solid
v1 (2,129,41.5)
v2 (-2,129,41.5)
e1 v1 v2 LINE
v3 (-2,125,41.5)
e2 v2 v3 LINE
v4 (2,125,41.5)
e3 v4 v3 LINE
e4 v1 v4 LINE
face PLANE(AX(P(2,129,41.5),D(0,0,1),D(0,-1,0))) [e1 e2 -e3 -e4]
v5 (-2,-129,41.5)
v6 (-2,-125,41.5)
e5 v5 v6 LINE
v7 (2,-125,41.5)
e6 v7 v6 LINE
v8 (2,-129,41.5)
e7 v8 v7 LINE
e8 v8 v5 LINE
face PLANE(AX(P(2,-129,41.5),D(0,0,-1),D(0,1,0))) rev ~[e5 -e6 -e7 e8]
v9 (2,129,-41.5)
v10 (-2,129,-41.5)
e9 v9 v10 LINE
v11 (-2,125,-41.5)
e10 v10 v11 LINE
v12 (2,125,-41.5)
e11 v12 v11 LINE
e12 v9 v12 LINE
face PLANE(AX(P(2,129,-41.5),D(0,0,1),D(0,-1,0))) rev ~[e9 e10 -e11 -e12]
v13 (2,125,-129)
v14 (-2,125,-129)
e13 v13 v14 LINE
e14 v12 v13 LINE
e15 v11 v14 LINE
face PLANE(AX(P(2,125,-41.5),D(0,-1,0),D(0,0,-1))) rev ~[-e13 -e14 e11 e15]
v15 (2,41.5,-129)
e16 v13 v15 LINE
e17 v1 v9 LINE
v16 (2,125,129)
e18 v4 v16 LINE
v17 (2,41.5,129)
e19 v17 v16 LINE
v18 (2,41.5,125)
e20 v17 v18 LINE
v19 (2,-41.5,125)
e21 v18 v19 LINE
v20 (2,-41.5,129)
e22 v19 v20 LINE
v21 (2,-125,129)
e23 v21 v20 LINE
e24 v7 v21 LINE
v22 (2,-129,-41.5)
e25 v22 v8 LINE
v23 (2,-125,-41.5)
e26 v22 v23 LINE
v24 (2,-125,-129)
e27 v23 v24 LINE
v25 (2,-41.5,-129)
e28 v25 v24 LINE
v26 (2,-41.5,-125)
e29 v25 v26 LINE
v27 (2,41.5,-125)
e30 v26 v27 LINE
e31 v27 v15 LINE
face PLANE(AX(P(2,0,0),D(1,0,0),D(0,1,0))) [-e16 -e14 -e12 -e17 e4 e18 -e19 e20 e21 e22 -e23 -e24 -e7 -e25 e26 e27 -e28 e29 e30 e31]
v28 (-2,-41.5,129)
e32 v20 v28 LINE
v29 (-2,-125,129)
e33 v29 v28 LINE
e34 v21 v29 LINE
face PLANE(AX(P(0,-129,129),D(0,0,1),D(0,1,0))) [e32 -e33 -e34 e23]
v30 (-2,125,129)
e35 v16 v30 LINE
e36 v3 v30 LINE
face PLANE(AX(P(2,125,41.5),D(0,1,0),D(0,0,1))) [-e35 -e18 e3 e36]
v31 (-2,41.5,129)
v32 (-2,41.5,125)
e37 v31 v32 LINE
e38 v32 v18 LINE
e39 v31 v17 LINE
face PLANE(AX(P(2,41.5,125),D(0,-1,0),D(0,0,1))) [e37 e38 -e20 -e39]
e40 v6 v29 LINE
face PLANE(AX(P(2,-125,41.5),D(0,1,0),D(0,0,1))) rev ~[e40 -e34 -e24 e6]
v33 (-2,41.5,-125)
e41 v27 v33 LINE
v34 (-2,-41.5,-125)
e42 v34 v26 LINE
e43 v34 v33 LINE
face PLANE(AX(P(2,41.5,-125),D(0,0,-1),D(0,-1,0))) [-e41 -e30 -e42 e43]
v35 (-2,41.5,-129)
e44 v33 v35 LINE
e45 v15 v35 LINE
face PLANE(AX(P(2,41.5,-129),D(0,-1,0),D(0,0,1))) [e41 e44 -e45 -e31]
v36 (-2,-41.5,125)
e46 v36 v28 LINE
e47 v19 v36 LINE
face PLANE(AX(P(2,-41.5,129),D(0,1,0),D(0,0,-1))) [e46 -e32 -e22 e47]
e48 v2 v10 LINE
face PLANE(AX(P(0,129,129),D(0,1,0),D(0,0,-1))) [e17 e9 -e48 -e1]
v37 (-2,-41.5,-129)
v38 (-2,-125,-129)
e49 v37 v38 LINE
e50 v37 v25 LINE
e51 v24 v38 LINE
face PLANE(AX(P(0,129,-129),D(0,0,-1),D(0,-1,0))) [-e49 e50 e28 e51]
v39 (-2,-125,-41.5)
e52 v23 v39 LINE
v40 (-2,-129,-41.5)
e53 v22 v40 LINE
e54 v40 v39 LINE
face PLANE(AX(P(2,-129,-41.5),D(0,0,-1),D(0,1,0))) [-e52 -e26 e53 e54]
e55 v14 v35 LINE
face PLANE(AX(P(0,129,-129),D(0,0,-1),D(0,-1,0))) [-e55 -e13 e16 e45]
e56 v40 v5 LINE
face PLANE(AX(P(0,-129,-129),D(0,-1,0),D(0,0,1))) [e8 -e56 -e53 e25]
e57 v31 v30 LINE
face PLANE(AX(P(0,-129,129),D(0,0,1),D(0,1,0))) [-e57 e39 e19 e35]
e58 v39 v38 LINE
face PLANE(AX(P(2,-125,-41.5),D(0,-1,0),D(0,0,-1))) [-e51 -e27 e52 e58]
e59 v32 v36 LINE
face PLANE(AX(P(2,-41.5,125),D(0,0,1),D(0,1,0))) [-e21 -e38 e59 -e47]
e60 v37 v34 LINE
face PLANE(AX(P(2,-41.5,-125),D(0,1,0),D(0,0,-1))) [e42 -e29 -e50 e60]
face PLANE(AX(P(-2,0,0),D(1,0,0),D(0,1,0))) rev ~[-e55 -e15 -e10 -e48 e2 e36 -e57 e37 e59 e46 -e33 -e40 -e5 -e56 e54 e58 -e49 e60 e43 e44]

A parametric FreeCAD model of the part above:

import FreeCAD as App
import Part
import Sketcher

V = App.Vector

doc = App.newDocument("Part")
body = doc.addObject("PartDesign::Body", "Body")

sketch1 = body.newObject("Sketcher::SketchObject", "Sketch")
sketch1.AttachmentSupport = (doc.getObject("YZ_Plane"), [""])
sketch1.MapMode = "FlatFace"
sketch1.addGeometry([
    Part.LineSegment(V(129, 129, 0), V(-129, 129, 0)),
    Part.LineSegment(V(-129, 129, 0), V(-129, -129, 0)),
    Part.LineSegment(V(-129, -129, 0), V(129, -129, 0)),
    Part.LineSegment(V(129, -129, 0), V(129, 129, 0)),
], False)
sketch1.addConstraint([
    Sketcher.Constraint("Coincident", 0, 2, 1, 1),
    Sketcher.Constraint("Coincident", 1, 2, 2, 1),
    Sketcher.Constraint("Coincident", 2, 2, 3, 1),
    Sketcher.Constraint("Coincident", 3, 2, 0, 1),
    Sketcher.Constraint("Horizontal", 0),
    Sketcher.Constraint("Vertical", 1),
    Sketcher.Constraint("Horizontal", 2),
    Sketcher.Constraint("Vertical", 3),
    Sketcher.Constraint("Symmetric", 0, 2, 2, 2, -1, 1),
    Sketcher.Constraint("Equal", 2, 1),
    Sketcher.Constraint("DistanceX", 0, 2, 0, 1, 258.0),
])
pad1 = body.newObject("PartDesign::Pad", "Pad")
pad1.Profile = sketch1
pad1.Length = 4
pad1.Midplane = True

sketch2 = body.newObject("Sketcher::SketchObject", "Sketch001")
sketch2.AttachmentSupport = (doc.getObject("YZ_Plane"), [""])
sketch2.MapMode = "FlatFace"
sketch2.AttachmentOffset = App.Placement(V(0, 0, 2), App.Rotation())
sketch2.addGeometry([
    Part.LineSegment(V(125, -129, 0), V(129, -129, 0)),
    Part.LineSegment(V(129, -129, 0), V(129, -41.5, 0)),
    Part.LineSegment(V(129, -41.5, 0), V(125, -41.5, 0)),
    Part.LineSegment(V(125, -41.5, 0), V(125, -129, 0)),
    Part.LineSegment(V(-129, -129, 0), V(-125, -129, 0)),
    Part.LineSegment(V(-125, -129, 0), V(-125, -41.5, 0)),
    Part.LineSegment(V(-125, -41.5, 0), V(-129, -41.5, 0)),
    Part.LineSegment(V(-129, -41.5, 0), V(-129, -129, 0)),
    Part.LineSegment(V(-125, 41.5, 0), V(-125, 129, 0)),
    Part.LineSegment(V(-125, 129, 0), V(-129, 129, 0)),
    Part.LineSegment(V(-129, 129, 0), V(-129, 41.5, 0)),
    Part.LineSegment(V(-129, 41.5, 0), V(-125, 41.5, 0)),
    Part.LineSegment(V(125, 41.5, 0), V(129, 41.5, 0)),
    Part.LineSegment(V(129, 41.5, 0), V(129, 129, 0)),
    Part.LineSegment(V(129, 129, 0), V(125, 129, 0)),
    Part.LineSegment(V(125, 129, 0), V(125, 41.5, 0)),
], False)
sketch2.addConstraint([
    Sketcher.Constraint("Coincident", 0, 2, 1, 1),
    Sketcher.Constraint("Coincident", 1, 2, 2, 1),
    Sketcher.Constraint("Coincident", 2, 2, 3, 1),
    Sketcher.Constraint("Coincident", 3, 2, 0, 1),
    Sketcher.Constraint("Coincident", 4, 2, 5, 1),
    Sketcher.Constraint("Coincident", 5, 2, 6, 1),
    Sketcher.Constraint("Coincident", 6, 2, 7, 1),
    Sketcher.Constraint("Coincident", 7, 2, 4, 1),
    Sketcher.Constraint("Coincident", 8, 2, 9, 1),
    Sketcher.Constraint("Coincident", 9, 2, 10, 1),
    Sketcher.Constraint("Coincident", 10, 2, 11, 1),
    Sketcher.Constraint("Coincident", 11, 2, 8, 1),
    Sketcher.Constraint("Coincident", 12, 2, 13, 1),
    Sketcher.Constraint("Coincident", 13, 2, 14, 1),
    Sketcher.Constraint("Coincident", 14, 2, 15, 1),
    Sketcher.Constraint("Coincident", 15, 2, 12, 1),
    Sketcher.Constraint("Horizontal", 0),
    Sketcher.Constraint("Vertical", 1),
    Sketcher.Constraint("Horizontal", 2),
    Sketcher.Constraint("Vertical", 3),
    Sketcher.Constraint("Horizontal", 4),
    Sketcher.Constraint("Vertical", 5),
    Sketcher.Constraint("Horizontal", 6),
    Sketcher.Constraint("Vertical", 7),
    Sketcher.Constraint("Vertical", 8),
    Sketcher.Constraint("Horizontal", 9),
    Sketcher.Constraint("Vertical", 10),
    Sketcher.Constraint("Horizontal", 11),
    Sketcher.Constraint("Horizontal", 12),
    Sketcher.Constraint("Vertical", 13),
    Sketcher.Constraint("Horizontal", 14),
    Sketcher.Constraint("Vertical", 15),
    Sketcher.Constraint("Symmetric", 3, 2, 8, 2, -1, 1),
    Sketcher.Constraint("Symmetric", 1, 2, 10, 2, -1, 1),
    Sketcher.Constraint("Symmetric", 6, 2, 12, 2, -1, 1),
    Sketcher.Constraint("Symmetric", 4, 2, 14, 2, -1, 1),
    Sketcher.Constraint("Symmetric", 3, 2, 4, 2, -2),
    Sketcher.Constraint("Symmetric", 1, 2, 6, 2, -2),
    Sketcher.Constraint("DistanceX", 0, 1, 0, 2, 4.0),
    Sketcher.Constraint("DistanceY", 1, 1, 1, 2, 87.5),
    Sketcher.Constraint("DistanceY", 6, 2, 10, 2, 83.0),
    Sketcher.Constraint("DistanceX", -1, 1, 0, 2, 129.0),
])
pocket1 = body.newObject("PartDesign::Pocket", "Pocket")
pocket1.Profile = sketch2
pocket1.Type = "ThroughAll"
pocket1.Midplane = True

sketch3 = body.newObject("Sketcher::SketchObject", "Sketch002")
sketch3.AttachmentSupport = (doc.getObject("YZ_Plane"), [""])
sketch3.MapMode = "FlatFace"
sketch3.AttachmentOffset = App.Placement(V(0, 0, 2), App.Rotation())
sketch3.addGeometry([
    Part.LineSegment(V(-41.5, 125, 0), V(41.5, 125, 0)),
    Part.LineSegment(V(41.5, 125, 0), V(41.5, 133, 0)),
    Part.LineSegment(V(41.5, 133, 0), V(-41.5, 133, 0)),
    Part.LineSegment(V(-41.5, 133, 0), V(-41.5, 125, 0)),
    Part.LineSegment(V(41.5, -125, 0), V(-41.5, -125, 0)),
    Part.LineSegment(V(-41.5, -125, 0), V(-41.5, -133, 0)),
    Part.LineSegment(V(-41.5, -133, 0), V(41.5, -133, 0)),
    Part.LineSegment(V(41.5, -133, 0), V(41.5, -125, 0)),
], False)
sketch3.addConstraint([
    Sketcher.Constraint("Coincident", 0, 2, 1, 1),
    Sketcher.Constraint("Coincident", 1, 2, 2, 1),
    Sketcher.Constraint("Coincident", 2, 2, 3, 1),
    Sketcher.Constraint("Coincident", 3, 2, 0, 1),
    Sketcher.Constraint("Coincident", 4, 2, 5, 1),
    Sketcher.Constraint("Coincident", 5, 2, 6, 1),
    Sketcher.Constraint("Coincident", 6, 2, 7, 1),
    Sketcher.Constraint("Coincident", 7, 2, 4, 1),
    Sketcher.Constraint("Horizontal", 0),
    Sketcher.Constraint("Vertical", 1),
    Sketcher.Constraint("Horizontal", 2),
    Sketcher.Constraint("Vertical", 3),
    Sketcher.Constraint("Horizontal", 4),
    Sketcher.Constraint("Vertical", 5),
    Sketcher.Constraint("Horizontal", 6),
    Sketcher.Constraint("Vertical", 7),
    Sketcher.Constraint("Symmetric", 0, 2, 4, 2, -1, 1),
    Sketcher.Constraint("Symmetric", 2, 2, 6, 2, -1, 1),
    Sketcher.Constraint("Vertical", 3, 2, 4, 2),
    Sketcher.Constraint("DistanceX", 0, 1, 0, 2, 83.0),
    Sketcher.Constraint("DistanceY", 1, 1, 1, 2, 8.0),
    Sketcher.Constraint("DistanceY", -1, 1, 0, 2, 125.0),
])
pocket2 = body.newObject("PartDesign::Pocket", "Pocket001")
pocket2.Profile = sketch3
pocket2.Type = "ThroughAll"
pocket2.Midplane = True

doc.recompute()
